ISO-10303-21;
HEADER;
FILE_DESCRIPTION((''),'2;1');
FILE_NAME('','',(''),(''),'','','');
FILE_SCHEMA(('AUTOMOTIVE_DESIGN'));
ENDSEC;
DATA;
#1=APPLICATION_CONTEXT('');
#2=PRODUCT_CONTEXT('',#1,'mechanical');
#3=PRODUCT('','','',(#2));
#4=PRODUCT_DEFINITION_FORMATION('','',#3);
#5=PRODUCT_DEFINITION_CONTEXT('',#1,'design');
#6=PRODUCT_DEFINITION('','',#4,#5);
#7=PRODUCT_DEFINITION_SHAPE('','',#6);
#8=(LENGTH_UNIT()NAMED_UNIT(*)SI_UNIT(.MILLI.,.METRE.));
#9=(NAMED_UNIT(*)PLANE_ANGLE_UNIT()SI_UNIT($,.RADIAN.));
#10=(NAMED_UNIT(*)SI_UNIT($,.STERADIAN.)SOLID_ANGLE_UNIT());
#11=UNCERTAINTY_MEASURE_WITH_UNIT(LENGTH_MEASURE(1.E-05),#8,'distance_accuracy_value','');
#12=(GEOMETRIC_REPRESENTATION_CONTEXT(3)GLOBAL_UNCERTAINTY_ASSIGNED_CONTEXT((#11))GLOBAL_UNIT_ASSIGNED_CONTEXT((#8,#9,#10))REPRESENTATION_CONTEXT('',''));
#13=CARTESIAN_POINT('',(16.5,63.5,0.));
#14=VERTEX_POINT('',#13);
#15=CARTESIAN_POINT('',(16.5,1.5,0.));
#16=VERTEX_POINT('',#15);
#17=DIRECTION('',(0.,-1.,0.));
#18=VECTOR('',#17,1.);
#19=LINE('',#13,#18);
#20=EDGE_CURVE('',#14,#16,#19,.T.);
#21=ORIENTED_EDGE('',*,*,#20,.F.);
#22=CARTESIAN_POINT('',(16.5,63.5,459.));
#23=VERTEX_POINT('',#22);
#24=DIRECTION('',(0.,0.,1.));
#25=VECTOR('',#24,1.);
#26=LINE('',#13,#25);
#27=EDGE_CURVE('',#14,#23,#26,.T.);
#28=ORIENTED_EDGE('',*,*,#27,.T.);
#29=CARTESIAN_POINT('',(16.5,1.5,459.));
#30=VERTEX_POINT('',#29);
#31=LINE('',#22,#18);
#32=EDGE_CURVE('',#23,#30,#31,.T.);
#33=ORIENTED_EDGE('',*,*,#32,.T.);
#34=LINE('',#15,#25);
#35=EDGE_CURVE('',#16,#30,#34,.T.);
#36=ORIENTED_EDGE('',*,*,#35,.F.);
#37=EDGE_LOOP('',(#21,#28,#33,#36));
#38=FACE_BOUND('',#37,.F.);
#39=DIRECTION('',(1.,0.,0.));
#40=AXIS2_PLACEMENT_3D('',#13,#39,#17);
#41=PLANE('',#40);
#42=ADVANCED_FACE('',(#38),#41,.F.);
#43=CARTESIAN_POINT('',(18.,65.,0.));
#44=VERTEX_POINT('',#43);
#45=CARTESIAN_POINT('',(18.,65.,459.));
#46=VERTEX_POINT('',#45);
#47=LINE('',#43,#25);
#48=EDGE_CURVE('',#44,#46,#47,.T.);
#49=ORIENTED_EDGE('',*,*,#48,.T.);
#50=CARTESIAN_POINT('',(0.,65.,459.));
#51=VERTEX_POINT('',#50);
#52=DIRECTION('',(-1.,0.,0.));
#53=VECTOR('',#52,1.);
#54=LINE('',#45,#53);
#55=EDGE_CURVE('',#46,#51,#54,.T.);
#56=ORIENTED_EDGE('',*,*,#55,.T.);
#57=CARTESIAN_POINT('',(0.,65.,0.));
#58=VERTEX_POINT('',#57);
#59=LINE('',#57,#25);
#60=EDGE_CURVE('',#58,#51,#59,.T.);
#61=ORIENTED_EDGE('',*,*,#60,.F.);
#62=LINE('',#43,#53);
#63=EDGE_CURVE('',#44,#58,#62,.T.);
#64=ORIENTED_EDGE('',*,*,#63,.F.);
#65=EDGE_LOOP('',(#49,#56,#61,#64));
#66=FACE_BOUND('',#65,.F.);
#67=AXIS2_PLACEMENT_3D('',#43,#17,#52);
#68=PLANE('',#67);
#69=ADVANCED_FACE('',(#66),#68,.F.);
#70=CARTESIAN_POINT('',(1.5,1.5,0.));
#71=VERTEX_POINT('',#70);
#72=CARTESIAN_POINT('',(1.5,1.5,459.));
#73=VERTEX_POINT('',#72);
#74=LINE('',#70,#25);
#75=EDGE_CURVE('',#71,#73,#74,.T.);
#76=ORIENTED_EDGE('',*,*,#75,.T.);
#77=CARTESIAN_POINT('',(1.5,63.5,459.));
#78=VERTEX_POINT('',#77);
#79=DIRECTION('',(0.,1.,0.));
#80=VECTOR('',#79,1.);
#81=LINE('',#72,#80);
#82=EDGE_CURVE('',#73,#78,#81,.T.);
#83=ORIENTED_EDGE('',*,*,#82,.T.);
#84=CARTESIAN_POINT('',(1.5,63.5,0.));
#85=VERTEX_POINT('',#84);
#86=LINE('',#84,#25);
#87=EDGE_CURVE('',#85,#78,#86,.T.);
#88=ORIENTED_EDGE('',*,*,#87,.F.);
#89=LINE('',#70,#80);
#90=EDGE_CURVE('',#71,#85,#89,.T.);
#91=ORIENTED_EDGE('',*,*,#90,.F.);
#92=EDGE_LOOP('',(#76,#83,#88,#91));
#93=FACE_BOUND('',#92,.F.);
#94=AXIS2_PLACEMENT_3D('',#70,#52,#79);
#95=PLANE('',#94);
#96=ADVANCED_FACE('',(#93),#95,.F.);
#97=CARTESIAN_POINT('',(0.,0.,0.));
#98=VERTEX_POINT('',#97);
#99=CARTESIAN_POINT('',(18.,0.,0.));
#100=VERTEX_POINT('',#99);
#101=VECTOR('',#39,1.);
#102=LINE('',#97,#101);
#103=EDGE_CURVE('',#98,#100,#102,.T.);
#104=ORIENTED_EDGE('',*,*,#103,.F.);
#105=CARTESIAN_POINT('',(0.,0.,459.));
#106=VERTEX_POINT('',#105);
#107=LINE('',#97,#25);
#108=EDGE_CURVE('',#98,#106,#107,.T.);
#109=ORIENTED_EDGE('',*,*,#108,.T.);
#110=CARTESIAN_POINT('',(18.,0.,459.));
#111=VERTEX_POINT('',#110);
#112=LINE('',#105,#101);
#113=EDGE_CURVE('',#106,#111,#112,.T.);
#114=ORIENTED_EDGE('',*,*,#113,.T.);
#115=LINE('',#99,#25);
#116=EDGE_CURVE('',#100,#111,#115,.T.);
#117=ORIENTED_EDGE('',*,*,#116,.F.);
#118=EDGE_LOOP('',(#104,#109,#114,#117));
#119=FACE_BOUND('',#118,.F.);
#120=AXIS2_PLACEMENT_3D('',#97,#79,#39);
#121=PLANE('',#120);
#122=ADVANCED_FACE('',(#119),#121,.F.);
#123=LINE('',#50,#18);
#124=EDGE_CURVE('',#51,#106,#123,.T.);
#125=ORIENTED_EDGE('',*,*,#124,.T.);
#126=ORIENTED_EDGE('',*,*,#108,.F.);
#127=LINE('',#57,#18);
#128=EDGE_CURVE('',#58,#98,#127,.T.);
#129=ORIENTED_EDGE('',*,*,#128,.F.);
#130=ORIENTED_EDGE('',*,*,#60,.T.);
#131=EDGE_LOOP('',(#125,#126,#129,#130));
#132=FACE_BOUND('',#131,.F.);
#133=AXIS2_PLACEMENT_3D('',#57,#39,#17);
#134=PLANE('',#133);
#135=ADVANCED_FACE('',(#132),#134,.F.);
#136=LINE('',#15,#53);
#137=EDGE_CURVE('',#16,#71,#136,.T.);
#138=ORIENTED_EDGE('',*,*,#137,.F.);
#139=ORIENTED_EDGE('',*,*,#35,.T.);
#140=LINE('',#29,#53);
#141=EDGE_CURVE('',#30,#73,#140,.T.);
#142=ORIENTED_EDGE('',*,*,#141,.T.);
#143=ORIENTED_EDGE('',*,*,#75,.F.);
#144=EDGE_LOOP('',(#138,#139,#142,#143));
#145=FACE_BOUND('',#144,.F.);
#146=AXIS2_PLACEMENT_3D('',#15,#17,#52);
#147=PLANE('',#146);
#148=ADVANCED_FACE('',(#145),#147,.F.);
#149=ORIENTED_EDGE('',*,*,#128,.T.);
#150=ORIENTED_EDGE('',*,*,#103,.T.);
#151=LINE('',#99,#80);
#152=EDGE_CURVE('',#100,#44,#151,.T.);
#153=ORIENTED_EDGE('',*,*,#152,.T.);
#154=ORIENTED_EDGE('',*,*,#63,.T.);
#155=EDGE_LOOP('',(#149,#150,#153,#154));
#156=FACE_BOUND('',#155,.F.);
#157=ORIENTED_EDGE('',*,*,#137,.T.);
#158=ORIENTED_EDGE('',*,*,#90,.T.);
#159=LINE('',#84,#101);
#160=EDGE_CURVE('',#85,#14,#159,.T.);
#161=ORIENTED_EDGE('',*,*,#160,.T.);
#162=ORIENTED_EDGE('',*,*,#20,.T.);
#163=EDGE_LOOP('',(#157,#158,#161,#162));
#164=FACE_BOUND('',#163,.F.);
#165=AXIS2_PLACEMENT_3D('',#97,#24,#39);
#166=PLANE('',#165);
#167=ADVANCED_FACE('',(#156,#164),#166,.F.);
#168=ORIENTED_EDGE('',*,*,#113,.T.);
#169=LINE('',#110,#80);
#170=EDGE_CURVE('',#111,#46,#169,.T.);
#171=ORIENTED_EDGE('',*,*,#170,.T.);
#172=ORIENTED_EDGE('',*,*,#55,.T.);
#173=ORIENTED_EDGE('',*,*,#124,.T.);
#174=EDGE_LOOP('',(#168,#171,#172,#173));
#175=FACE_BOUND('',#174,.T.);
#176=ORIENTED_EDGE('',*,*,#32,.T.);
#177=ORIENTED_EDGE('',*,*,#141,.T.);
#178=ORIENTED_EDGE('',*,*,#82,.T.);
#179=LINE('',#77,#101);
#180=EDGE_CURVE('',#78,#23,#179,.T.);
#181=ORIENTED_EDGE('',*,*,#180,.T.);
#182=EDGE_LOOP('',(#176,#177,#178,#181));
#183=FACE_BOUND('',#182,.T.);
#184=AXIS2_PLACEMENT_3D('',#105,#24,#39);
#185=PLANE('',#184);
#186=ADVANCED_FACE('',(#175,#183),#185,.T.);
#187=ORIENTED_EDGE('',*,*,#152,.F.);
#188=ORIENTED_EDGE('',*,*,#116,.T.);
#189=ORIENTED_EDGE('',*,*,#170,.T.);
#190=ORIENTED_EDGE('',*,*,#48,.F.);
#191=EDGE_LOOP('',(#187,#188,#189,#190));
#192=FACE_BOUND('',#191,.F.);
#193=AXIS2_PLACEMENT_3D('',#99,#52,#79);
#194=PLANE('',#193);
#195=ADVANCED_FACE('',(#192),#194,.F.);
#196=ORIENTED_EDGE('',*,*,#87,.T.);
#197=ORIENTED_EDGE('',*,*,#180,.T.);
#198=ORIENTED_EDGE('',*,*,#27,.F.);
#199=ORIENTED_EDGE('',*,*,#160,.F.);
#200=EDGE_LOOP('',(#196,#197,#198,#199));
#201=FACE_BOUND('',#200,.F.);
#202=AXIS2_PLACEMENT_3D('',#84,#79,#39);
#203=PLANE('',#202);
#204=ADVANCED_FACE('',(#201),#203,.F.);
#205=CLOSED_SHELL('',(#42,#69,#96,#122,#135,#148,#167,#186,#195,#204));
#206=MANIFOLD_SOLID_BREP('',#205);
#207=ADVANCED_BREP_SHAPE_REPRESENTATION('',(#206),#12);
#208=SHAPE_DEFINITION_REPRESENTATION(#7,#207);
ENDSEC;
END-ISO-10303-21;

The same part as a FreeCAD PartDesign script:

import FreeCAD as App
import Part
import Sketcher

doc = App.newDocument("Part")
body = doc.addObject("PartDesign::Body", "Body")

sketch1 = body.newObject("Sketcher::SketchObject", "Sketch")
sketch1.AttachmentSupport = (doc.getObject("XY_Plane"), [""])
sketch1.MapMode = "FlatFace"
sketch1.addGeometry(Part.LineSegment(App.Vector(0, 65, 0), App.Vector(0, 0, 0)), False)
sketch1.addGeometry(Part.LineSegment(App.Vector(0, 0, 0), App.Vector(18, 0, 0)), False)
sketch1.addGeometry(Part.LineSegment(App.Vector(18, 0, 0), App.Vector(18, 65, 0)), False)
sketch1.addGeometry(Part.LineSegment(App.Vector(18, 65, 0), App.Vector(0, 65, 0)), False)
sketch1.addGeometry(Part.LineSegment(App.Vector(2, 2, 0), App.Vector(2, 64, 0)), False)
sketch1.addGeometry(Part.LineSegment(App.Vector(2, 64, 0), App.Vector(16, 64, 0)), False)
sketch1.addGeometry(Part.LineSegment(App.Vector(16, 64, 0), App.Vector(16, 2, 0)), False)
sketch1.addGeometry(Part.LineSegment(App.Vector(16, 2, 0), App.Vector(2, 2, 0)), False)
sketch1.addConstraint(Sketcher.Constraint("Coincident", 0, 2, 1, 1))
sketch1.addConstraint(Sketcher.Constraint("Coincident", 1, 2, 2, 1))
sketch1.addConstraint(Sketcher.Constraint("Coincident", 2, 2, 3, 1))
sketch1.addConstraint(Sketcher.Constraint("Coincident", 3, 2, 0, 1))
sketch1.addConstraint(Sketcher.Constraint("Coincident", 4, 2, 5, 1))
sketch1.addConstraint(Sketcher.Constraint("Coincident", 5, 2, 6, 1))
sketch1.addConstraint(Sketcher.Constraint("Coincident", 6, 2, 7, 1))
sketch1.addConstraint(Sketcher.Constraint("Coincident", 7, 2, 4, 1))
sketch1.addConstraint(Sketcher.Constraint("Vertical", 0))
sketch1.addConstraint(Sketcher.Constraint("Horizontal", 1))
sketch1.addConstraint(Sketcher.Constraint("Vertical", 2))
sketch1.addConstraint(Sketcher.Constraint("Horizontal", 3))
sketch1.addConstraint(Sketcher.Constraint("Vertical", 4))
sketch1.addConstraint(Sketcher.Constraint("Horizontal", 5))
sketch1.addConstraint(Sketcher.Constraint("Vertical", 6))
sketch1.addConstraint(Sketcher.Constraint("Horizontal", 7))
sketch1.addConstraint(Sketcher.Constraint("Coincident", 0, 2, -1, 1))
sketch1.addConstraint(Sketcher.Constraint("DistanceX", 1, 1, 1, 2, 18.0))
sketch1.addConstraint(Sketcher.Constraint("DistanceY", 0, 2, 0, 1, 65.0))
sketch1.addConstraint(Sketcher.Constraint("DistanceX", -1, 1, 4, 2, 1.5))
sketch1.addConstraint(Sketcher.Constraint("DistanceY", -1, 1, 6, 2, 1.5))
sketch1.addConstraint(Sketcher.Constraint("DistanceY", 4, 2, 3, 2, 1.5))
sketch1.addConstraint(Sketcher.Constraint("DistanceX", 5, 2, 2, 2, 1.5))
pad1 = body.newObject("PartDesign::Pad", "Pad")
pad1.Profile = sketch1
pad1.Length = 459

doc.recompute()
